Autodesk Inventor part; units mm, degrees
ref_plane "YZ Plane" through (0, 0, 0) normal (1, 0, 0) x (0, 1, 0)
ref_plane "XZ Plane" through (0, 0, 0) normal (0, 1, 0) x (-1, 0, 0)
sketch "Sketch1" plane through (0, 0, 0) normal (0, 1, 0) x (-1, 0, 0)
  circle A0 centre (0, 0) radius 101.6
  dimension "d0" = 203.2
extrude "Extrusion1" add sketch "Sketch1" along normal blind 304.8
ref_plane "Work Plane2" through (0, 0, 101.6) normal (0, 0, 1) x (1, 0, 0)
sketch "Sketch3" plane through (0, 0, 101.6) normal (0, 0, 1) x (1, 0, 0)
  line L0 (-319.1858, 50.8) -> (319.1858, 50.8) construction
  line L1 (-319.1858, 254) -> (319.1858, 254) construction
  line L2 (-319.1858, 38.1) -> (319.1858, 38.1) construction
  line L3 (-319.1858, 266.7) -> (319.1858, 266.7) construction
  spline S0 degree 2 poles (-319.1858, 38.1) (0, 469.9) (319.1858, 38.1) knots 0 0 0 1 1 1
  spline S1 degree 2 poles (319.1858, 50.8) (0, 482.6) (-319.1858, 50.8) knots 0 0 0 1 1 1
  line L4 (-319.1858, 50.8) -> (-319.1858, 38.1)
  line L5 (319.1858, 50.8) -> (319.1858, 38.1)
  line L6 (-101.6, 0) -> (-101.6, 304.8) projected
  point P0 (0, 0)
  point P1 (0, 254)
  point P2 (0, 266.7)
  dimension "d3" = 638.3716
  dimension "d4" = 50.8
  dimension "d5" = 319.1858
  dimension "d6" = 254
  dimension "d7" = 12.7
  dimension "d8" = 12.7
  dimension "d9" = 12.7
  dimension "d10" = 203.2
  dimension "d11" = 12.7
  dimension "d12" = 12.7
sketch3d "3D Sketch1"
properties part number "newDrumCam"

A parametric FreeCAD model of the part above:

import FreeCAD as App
import Part
import Sketcher

V = App.Vector
Q = App.Units.Quantity

doc = App.newDocument("Part")
body = doc.addObject("PartDesign::Body", "Body")

sketch1 = doc.addObject("Sketcher::SketchObject", "Sketch")
body.addObject(sketch1)
sketch1.AttachmentSupport = (doc.XZ_Plane, [""])
sketch1.MapMode = "FlatFace"
sketch1.addGeometry(Part.Circle(V(0, 0, 0), V(0, 0, 1), 102), False)
sketch1.addConstraint(Sketcher.Constraint("Coincident", 0, 3, -1, 1))
sketch1.addConstraint(Sketcher.Constraint("Diameter", 0, Q("8 in")))
pad1 = doc.addObject("PartDesign::Pad", "Pad")
body.addObject(pad1)
pad1.Profile = sketch1
pad1.Length = Q("12 in")
pad1.Reversed = True

doc.recompute()
